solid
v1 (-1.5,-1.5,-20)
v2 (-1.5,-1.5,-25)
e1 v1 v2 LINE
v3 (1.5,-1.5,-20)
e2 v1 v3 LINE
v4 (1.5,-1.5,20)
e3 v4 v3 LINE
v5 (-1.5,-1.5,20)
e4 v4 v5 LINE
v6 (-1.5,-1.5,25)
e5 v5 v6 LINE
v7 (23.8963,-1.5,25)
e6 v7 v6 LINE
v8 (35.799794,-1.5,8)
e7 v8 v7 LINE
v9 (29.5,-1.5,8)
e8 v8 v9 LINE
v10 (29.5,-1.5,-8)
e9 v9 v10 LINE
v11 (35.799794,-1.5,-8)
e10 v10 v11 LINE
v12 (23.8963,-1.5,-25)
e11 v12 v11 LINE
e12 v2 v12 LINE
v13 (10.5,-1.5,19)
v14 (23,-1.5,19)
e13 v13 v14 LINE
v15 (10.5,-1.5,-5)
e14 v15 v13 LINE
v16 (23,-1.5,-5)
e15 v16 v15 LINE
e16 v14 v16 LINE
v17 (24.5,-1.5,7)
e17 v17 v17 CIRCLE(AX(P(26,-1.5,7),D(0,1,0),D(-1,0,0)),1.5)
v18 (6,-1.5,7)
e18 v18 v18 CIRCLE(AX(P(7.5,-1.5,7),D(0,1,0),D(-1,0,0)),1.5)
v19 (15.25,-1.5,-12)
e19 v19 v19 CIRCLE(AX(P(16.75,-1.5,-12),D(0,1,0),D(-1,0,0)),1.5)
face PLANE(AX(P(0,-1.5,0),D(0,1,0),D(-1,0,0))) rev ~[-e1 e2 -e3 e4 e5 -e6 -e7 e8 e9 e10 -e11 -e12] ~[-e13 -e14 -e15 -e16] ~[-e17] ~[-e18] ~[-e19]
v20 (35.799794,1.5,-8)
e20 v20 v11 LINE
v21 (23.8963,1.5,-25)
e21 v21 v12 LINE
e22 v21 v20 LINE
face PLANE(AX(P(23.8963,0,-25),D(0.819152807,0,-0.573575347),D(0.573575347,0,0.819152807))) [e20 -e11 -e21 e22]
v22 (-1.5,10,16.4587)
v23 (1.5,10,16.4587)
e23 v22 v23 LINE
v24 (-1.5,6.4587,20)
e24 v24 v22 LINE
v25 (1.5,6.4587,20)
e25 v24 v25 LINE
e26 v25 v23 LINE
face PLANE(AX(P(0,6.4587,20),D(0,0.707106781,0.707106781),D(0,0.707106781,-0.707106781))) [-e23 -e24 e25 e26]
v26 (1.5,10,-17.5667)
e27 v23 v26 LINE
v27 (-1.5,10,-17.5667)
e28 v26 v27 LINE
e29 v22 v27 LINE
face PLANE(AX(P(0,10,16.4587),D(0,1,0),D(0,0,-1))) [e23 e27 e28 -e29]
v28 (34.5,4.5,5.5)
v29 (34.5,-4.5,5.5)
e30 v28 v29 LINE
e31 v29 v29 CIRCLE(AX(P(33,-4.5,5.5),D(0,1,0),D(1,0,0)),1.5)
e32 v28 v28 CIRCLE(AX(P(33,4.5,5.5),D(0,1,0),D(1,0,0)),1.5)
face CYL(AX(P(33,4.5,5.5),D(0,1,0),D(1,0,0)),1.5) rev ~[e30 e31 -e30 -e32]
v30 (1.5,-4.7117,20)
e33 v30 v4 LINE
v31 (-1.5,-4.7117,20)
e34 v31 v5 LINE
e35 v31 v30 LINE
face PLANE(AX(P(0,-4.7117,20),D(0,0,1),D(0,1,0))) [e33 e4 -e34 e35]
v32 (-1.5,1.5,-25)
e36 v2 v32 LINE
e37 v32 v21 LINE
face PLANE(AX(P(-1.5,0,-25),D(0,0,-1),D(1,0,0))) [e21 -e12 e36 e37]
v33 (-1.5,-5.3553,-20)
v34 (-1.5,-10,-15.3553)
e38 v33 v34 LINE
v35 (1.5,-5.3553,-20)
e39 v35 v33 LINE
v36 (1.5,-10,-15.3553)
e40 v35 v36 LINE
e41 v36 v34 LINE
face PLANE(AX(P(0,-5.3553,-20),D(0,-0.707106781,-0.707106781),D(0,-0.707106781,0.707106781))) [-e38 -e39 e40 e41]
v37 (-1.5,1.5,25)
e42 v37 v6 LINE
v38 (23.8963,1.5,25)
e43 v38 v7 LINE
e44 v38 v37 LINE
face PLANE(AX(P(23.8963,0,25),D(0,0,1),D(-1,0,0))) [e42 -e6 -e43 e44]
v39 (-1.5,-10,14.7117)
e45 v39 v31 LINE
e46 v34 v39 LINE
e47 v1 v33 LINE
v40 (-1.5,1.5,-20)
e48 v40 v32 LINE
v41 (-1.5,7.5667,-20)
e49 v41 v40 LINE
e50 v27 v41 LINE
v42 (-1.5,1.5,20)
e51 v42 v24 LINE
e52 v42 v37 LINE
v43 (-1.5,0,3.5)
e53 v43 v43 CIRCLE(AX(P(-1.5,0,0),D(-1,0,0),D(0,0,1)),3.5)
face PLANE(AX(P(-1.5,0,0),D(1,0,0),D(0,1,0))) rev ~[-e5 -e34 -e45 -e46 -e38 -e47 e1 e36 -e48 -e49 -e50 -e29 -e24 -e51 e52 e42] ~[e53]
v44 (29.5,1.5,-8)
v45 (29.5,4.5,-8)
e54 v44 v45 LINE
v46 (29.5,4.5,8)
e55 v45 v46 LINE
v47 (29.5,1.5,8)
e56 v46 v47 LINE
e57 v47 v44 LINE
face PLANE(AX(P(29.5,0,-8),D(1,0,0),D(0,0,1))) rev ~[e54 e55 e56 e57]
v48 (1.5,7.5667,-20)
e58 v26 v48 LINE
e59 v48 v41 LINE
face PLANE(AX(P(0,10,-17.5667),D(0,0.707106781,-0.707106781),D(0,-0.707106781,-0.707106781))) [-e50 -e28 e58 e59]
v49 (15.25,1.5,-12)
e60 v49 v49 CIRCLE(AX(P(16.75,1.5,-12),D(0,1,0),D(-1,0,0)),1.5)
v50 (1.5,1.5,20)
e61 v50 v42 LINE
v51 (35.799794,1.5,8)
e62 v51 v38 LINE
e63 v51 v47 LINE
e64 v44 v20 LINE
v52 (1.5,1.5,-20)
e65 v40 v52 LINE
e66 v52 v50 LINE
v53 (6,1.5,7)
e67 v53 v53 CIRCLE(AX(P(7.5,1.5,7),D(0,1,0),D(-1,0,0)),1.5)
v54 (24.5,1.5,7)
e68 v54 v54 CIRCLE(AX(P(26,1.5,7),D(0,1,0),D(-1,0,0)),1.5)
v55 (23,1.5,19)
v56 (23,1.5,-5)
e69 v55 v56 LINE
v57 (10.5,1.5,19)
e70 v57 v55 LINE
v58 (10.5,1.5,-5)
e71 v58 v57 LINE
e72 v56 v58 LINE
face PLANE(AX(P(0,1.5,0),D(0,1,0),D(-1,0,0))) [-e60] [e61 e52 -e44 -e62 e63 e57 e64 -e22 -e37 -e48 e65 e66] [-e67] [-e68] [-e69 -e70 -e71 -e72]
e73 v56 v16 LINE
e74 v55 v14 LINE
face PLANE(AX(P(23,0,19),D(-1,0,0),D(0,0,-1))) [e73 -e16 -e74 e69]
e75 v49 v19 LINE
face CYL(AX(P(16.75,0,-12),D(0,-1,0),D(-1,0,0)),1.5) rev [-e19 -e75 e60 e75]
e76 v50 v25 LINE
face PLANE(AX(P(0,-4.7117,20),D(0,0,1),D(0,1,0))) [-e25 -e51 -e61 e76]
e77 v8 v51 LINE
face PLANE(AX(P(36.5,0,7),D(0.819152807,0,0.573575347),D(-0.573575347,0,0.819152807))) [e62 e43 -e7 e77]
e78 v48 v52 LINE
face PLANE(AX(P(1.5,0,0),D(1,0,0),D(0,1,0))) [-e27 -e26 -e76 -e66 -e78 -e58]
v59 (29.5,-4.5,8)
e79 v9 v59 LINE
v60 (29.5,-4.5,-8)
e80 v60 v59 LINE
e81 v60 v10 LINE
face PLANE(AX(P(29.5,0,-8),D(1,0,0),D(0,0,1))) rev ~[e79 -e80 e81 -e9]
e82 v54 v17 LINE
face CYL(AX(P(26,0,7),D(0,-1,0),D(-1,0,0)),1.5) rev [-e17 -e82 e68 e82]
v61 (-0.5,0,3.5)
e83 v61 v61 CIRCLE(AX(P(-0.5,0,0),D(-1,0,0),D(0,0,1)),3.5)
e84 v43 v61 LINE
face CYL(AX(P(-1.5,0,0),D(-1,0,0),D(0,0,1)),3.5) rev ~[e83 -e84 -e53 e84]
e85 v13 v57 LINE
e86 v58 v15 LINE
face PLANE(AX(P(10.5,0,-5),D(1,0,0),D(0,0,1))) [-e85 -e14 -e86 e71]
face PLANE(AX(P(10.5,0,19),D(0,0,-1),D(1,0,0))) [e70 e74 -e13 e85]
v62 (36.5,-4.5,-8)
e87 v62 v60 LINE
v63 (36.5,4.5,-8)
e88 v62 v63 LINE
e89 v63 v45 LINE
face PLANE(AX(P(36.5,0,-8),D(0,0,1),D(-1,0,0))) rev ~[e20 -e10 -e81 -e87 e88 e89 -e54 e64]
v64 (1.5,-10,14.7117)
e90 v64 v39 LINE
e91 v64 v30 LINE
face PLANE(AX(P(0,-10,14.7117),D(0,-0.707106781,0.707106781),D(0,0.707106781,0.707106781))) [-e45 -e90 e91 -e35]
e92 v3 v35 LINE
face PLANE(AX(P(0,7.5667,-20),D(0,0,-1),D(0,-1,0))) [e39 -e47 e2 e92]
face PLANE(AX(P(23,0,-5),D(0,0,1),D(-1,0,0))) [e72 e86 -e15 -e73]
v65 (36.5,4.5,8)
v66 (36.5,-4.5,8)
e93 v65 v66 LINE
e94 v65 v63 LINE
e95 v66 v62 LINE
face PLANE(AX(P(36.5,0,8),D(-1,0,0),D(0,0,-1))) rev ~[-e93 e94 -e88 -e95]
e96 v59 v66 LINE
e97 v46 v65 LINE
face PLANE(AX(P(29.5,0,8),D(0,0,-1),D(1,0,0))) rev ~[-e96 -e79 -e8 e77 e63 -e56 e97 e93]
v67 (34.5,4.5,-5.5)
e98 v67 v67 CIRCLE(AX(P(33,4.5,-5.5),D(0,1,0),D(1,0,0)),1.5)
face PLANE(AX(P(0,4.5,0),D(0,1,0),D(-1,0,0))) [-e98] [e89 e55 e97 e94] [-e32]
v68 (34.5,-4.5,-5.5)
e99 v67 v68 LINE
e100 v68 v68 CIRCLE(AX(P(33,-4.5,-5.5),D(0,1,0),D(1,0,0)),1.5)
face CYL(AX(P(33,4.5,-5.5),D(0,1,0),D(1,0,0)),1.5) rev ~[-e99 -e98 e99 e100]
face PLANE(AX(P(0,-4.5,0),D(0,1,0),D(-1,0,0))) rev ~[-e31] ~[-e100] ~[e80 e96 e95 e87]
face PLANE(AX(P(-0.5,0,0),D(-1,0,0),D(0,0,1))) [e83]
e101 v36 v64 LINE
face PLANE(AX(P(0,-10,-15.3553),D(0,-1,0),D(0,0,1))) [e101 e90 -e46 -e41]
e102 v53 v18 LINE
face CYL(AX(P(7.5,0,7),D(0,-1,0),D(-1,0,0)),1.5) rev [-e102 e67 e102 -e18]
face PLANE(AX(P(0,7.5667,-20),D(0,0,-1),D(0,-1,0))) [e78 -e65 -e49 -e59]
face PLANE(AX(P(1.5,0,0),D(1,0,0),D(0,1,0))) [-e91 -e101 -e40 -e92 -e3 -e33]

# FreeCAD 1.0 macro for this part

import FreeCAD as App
import Part
import Sketcher
Q = App.Units.Quantity


def add_polygon(sketch, points):
    """Adds a closed chain of lines whose ends are joined by coincident constraints."""
    first, n = sketch.GeometryCount, len(points)
    for a, b in zip(points, points[1:] + points[:1]):
        sketch.addGeometry(Part.LineSegment(App.Vector(*a, 0), App.Vector(*b, 0)), False)
    for i in range(n):
        sketch.addConstraint(Sketcher.Constraint("Coincident", first + i, 2, first + (i + 1) % n, 1))

doc = App.newDocument("Part")
body = doc.addObject("PartDesign::Body", "Body")

# Sketch on YZ plane
sketch1 = body.newObject("Sketcher::SketchObject", "Sketch")
sketch1.AttachmentSupport = (doc.getObject("YZ_Plane"), [""])
sketch1.MapMode = "FlatFace"
add_polygon(sketch1, [(10, -17.6), (10, 16.5), (6.5, 20), (-4.7, 20), (-10, 14.7), (-10, -15.4), (-5.4, -20), (7.6, -20)])  # lines 0-7
sketch1.addConstraint(Sketcher.Constraint("Vertical", 0))
sketch1.addConstraint(Sketcher.Constraint("Horizontal", 2))
sketch1.addConstraint(Sketcher.Constraint("Vertical", 4))
sketch1.addConstraint(Sketcher.Constraint("Horizontal", 6))
sketch1.addConstraint(Sketcher.Constraint("Perpendicular", 1, 3))
sketch1.addConstraint(Sketcher.Constraint("Perpendicular", 3, 5))
sketch1.addConstraint(Sketcher.Constraint("Perpendicular", 5, 7))
sketch1.addConstraint(Sketcher.Constraint("Angle", 1, Q("135 deg")))
sketch1.addConstraint(Sketcher.Constraint("DistanceY", -1, 1, 1, 2, Q("20 mm")))
sketch1.addConstraint(Sketcher.Constraint("DistanceY", 5, 2, -1, 1, Q("20 mm")))
sketch1.addConstraint(Sketcher.Constraint("DistanceX", 3, 2, 0, 2, Q("20 mm")))
sketch1.addConstraint(Sketcher.Constraint("DistanceX", -1, 1, 0, 2, Q("10 mm")))
sketch1.addConstraint(Sketcher.Constraint("DistanceX", 6, 1, 6, 2, Q("12.922 mm")))
sketch1.addConstraint(Sketcher.Constraint("DistanceY", 4, 2, 4, 1, Q("30.067 mm")))
sketch1.addConstraint(Sketcher.Constraint("DistanceX", 2, 2, 2, 1, Q("11.1704 mm")))
sketch1.addConstraint(Sketcher.Constraint("DistanceY", 3, 2, 0, 2, Q("1.747 mm")))
pad1 = body.newObject("PartDesign::Pad", "Pad")
pad1.Profile = sketch1
pad1.Length = 3
pad1.Midplane = True

# Sketch on XZ plane
sketch2 = body.newObject("Sketcher::SketchObject", "Sketch001")
sketch2.AttachmentSupport = (doc.getObject("XZ_Plane"), [""])
sketch2.MapMode = "FlatFace"
add_polygon(sketch2, [(23.9, -25), (-1.5, -25), (-1.5, -20), (1.5, -20), (1.5, 20), (-1.5, 20), (-1.5, 25), (23.9, 25), (36.5, 7), (36.5, -7)])  # lines 0-9
sketch2.addGeometry(Part.Circle(App.Vector(16.8, -12, 0), App.Vector(0, 0, 1), 1.5), False)  # 10
sketch2.addGeometry(Part.Circle(App.Vector(26, 7, 0), App.Vector(0, 0, 1), 1.5), False)  # 11
add_polygon(sketch2, [(23, 19), (10.5, 19), (10.5, -5), (23, -5)])  # lines 12-15
sketch2.addGeometry(Part.Circle(App.Vector(7.5, 7, 0), App.Vector(0, 0, 1), 1.5), False)  # 16
sketch2.addConstraint(Sketcher.Constraint("Horizontal", 0))
sketch2.addConstraint(Sketcher.Constraint("Vertical", 1))
sketch2.addConstraint(Sketcher.Constraint("Horizontal", 2))
sketch2.addConstraint(Sketcher.Constraint("Vertical", 3))
sketch2.addConstraint(Sketcher.Constraint("Horizontal", 4))
sketch2.addConstraint(Sketcher.Constraint("Vertical", 5))
sketch2.addConstraint(Sketcher.Constraint("Horizontal", 6))
sketch2.addConstraint(Sketcher.Constraint("Vertical", 8))
sketch2.addConstraint(Sketcher.Constraint("Horizontal", 12))
sketch2.addConstraint(Sketcher.Constraint("Vertical", 13))
sketch2.addConstraint(Sketcher.Constraint("Horizontal", 14))
sketch2.addConstraint(Sketcher.Constraint("Vertical", 15))
sketch2.addConstraint(Sketcher.Constraint("Equal", 10, 11))
sketch2.addConstraint(Sketcher.Constraint("Equal", 11, 16))
sketch2.addConstraint(Sketcher.Constraint("Symmetric", 1, 2, 3, 2, -1, 1))
sketch2.addConstraint(Sketcher.Constraint("Symmetric", 0, 2, 5, 2, -1))
sketch2.addConstraint(Sketcher.Constraint("Horizontal", 11, 3, 16, 3))
sketch2.addConstraint(Sketcher.Constraint("Horizontal", 16, 3, 7, 2))
sketch2.addConstraint(Sketcher.Constraint("Vertical", 6, 2, 9, 2))
sketch2.addConstraint(Sketcher.Constraint("Equal", 7, 9))
sketch2.addConstraint(Sketcher.Constraint("Diameter", 10, Q("3 mm")))
sketch2.addConstraint(Sketcher.Constraint("DistanceX", 2, 1, 2, 2, Q("3 mm")))
sketch2.addConstraint(Sketcher.Constraint("DistanceY", 13, 2, 13, 1, Q("24 mm")))
sketch2.addConstraint(Sketcher.Constraint("DistanceX", 12, 2, 12, 1, Q("12.5 mm")))
sketch2.addConstraint(Sketcher.Constraint("DistanceY", 10, 3, -1, 1, Q("12 mm")))
sketch2.addConstraint(Sketcher.Constraint("DistanceY", -1, 1, 11, 3, Q("7 mm")))
sketch2.addConstraint(Sketcher.Constraint("DistanceX", 2, 2, 16, 3, Q("6 mm")))
sketch2.addConstraint(Sketcher.Constraint("DistanceX", 4, 2, 12, 2, Q("12 mm")))
sketch2.addConstraint(Sketcher.Constraint("DistanceY", 16, 3, 12, 2, Q("12 mm")))
sketch2.addConstraint(Sketcher.Constraint("DistanceY", 12, 2, 5, 2, Q("6 mm")))
sketch2.addConstraint(Sketcher.Constraint("DistanceX", 14, 2, 11, 3, Q("3 mm")))
sketch2.addConstraint(Sketcher.Constraint("DistanceY", 1, 1, 1, 2, Q("5 mm")))
sketch2.addConstraint(Sketcher.Constraint("Angle", 7, Q("-55 deg")))
sketch2.addConstraint(Sketcher.Constraint("DistanceX", 16, 3, 7, 2, Q("29 mm")))
sketch2.addConstraint(Sketcher.Constraint("DistanceX", -1, 1, 10, 3, Q("16.75 mm")))
pad2 = body.newObject("PartDesign::Pad", "Pad001")
pad2.Profile = sketch2
pad2.Length = 3
pad2.Midplane = True

# Sketch on XZ plane
sketch3 = body.newObject("Sketcher::SketchObject", "Sketch002")
sketch3.AttachmentSupport = (doc.getObject("XZ_Plane"), [""])
sketch3.MapMode = "FlatFace"
add_polygon(sketch3, [(36, 8), (36, -8), (30, -8), (30, 8)])  # lines 0-3
sketch3.addConstraint(Sketcher.Constraint("Vertical", 0))
sketch3.addConstraint(Sketcher.Constraint("Horizontal", 1))
sketch3.addConstraint(Sketcher.Constraint("Vertical", 2))
sketch3.addConstraint(Sketcher.Constraint("Horizontal", 3))
sketch3.addConstraint(Sketcher.Constraint("DistanceX", 1, 2, 1, 1, Q("7 mm")))
sketch3.addConstraint(Sketcher.Constraint("DistanceY", 0, 2, -1, 1, Q("8 mm")))
sketch3.addConstraint(Sketcher.Constraint("DistanceY", -1, 1, 2, 2, Q("8 mm")))
sketch3.addConstraint(Sketcher.Constraint("DistanceX", -1, 1, 0, 2, Q("36.5 mm")))
pad3 = body.newObject("PartDesign::Pad", "Pad002")
pad3.Profile = sketch3
pad3.Length = 9
pad3.Midplane = True

# Sketch on XZ plane
sketch4 = body.newObject("Sketcher::SketchObject", "Sketch003")
sketch4.AttachmentSupport = (doc.getObject("XZ_Plane"), [""])
sketch4.MapMode = "FlatFace"
sketch4.AttachmentOffset = App.Placement(App.Vector(0, 0, -4.5), App.Rotation())
sketch4.addGeometry(Part.Circle(App.Vector(33, -5.5, 0), App.Vector(0, 0, 1), 1.5), False)
sketch4.addGeometry(Part.Circle(App.Vector(33, 5.5, 0), App.Vector(0, 0, 1), 1.5), False)
sketch4.addConstraint(Sketcher.Constraint("Equal", 0, 1))
sketch4.addConstraint(Sketcher.Constraint("Symmetric", 0, 3, 1, 3, -1))
sketch4.addConstraint(Sketcher.Constraint("Diameter", 0, Q("3 mm")))
sketch4.addConstraint(Sketcher.Constraint("DistanceY", 0, 3, 1, 3, Q("11 mm")))
sketch4.addConstraint(Sketcher.Constraint("DistanceX", -1, 1, 0, 3, Q("33 mm")))
pocket1 = body.newObject("PartDesign::Pocket", "Pocket")
pocket1.Profile = sketch4
pocket1.Length = 9
pocket1.Reversed = True

# Sketch on YZ plane
sketch5 = body.newObject("Sketcher::SketchObject", "Sketch004")
sketch5.AttachmentSupport = (doc.getObject("YZ_Plane"), [""])
sketch5.MapMode = "FlatFace"
sketch5.AttachmentOffset = App.Placement(App.Vector(0, 0, -1.5), App.Rotation())
sketch5.addGeometry(Part.Circle(App.Vector(0, 0, 0), App.Vector(0, 0, 1), 3.5), False)
sketch5.addConstraint(Sketcher.Constraint("Coincident", 0, 3, -1, 1))
sketch5.addConstraint(Sketcher.Constraint("Diameter", 0, Q("7 mm")))
pocket2 = body.newObject("PartDesign::Pocket", "Pocket001")
pocket2.Profile = sketch5
pocket2.Length = 1
pocket2.Reversed = True

doc.recompute()
